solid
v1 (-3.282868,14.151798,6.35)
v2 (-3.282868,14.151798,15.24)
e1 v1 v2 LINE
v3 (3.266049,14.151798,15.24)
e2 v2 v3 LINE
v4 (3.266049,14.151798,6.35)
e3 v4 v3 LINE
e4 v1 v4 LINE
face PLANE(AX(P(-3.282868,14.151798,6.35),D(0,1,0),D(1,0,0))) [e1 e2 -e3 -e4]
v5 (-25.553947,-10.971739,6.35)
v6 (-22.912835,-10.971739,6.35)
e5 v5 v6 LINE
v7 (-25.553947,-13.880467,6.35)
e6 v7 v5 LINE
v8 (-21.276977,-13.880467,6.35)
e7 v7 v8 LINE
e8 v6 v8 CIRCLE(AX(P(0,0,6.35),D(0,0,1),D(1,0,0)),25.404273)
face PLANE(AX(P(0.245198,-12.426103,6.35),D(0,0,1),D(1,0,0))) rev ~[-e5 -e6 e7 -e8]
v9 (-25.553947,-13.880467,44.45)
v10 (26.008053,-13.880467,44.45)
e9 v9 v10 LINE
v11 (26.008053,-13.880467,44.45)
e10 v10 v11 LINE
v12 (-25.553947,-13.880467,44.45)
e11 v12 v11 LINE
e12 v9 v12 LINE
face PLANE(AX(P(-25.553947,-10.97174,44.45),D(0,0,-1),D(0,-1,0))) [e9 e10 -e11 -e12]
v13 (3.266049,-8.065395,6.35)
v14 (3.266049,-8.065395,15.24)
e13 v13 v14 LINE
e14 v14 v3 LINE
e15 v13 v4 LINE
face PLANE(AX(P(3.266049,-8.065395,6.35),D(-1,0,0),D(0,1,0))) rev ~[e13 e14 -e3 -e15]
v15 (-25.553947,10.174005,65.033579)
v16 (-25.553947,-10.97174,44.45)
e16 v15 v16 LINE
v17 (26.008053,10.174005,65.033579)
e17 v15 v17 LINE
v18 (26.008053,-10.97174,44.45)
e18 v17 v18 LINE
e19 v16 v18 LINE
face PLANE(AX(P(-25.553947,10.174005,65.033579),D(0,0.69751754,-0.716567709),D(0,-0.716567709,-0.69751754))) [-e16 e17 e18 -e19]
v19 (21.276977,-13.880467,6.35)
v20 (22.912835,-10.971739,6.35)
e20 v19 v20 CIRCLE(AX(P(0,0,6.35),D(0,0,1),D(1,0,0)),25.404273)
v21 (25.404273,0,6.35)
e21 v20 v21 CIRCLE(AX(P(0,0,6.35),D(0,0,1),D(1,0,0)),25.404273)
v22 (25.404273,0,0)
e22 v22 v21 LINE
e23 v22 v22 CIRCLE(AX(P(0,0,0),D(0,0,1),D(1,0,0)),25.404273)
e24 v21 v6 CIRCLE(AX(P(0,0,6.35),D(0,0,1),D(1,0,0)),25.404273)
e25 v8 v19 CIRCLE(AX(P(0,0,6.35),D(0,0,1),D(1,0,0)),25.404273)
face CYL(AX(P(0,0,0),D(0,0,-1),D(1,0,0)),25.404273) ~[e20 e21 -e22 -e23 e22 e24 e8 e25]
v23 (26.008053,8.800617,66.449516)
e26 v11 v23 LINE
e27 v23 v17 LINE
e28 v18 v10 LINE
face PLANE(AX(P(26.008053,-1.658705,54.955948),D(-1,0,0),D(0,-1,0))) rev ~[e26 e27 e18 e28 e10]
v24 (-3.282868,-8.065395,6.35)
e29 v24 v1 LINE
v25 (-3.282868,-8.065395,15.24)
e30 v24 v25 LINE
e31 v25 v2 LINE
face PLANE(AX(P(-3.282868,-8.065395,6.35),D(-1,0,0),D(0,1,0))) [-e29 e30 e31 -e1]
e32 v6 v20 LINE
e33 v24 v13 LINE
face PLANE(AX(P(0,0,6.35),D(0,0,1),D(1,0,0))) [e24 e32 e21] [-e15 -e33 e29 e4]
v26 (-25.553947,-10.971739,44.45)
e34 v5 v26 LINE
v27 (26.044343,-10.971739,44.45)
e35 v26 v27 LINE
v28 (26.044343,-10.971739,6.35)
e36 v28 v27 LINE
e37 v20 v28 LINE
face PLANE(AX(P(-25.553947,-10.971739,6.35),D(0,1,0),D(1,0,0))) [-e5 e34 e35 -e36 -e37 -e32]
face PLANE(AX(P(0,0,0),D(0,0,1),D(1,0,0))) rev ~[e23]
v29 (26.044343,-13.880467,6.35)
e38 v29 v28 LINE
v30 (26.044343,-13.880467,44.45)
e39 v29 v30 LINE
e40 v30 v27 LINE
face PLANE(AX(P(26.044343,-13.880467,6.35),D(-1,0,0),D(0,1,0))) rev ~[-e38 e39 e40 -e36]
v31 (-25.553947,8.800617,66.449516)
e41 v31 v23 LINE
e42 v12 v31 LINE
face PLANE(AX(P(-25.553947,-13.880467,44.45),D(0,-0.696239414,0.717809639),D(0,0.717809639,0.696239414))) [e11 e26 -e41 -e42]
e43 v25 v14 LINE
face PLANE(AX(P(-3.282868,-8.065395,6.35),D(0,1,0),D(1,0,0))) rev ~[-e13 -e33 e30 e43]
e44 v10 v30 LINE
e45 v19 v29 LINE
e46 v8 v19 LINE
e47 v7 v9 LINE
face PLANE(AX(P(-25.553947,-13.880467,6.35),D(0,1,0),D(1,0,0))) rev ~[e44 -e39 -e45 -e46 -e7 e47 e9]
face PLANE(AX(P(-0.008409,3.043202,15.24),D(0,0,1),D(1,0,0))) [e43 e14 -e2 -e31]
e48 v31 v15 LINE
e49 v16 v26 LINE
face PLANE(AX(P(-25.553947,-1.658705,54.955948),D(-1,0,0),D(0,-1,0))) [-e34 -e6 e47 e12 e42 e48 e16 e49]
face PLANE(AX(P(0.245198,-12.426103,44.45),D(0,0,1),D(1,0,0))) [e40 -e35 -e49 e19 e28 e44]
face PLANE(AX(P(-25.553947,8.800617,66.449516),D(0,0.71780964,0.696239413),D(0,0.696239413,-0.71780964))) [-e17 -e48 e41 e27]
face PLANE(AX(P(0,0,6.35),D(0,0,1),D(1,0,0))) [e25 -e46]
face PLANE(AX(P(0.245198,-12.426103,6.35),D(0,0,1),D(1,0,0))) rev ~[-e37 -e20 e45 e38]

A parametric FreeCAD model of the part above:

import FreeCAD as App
import Part
import Sketcher
from FreeCAD import Vector
Q = App.Units.Quantity

doc = App.newDocument("Part")
params = doc.addObject("Spreadsheet::Sheet", "Params")
for row, (alias, value) in enumerate([
    ("pad1_length", "0.25 in"),
    ("pad2_length", "1.5 in"),
    ("pad3_length", "2.03 in"),
    ("pad4_length", "0.35 in"),
], start=1):
    params.set(f"A{row}", alias)
    params.set(f"B{row}", "=" + value)
    params.setAlias(f"B{row}", alias)

body = doc.addObject("PartDesign::Body", "Body")

# Sketch on XY plane
sketch1 = body.newObject("Sketcher::SketchObject", "Sketch")
sketch1.AttachmentSupport = (doc.getObject("XY_Plane"), [""])
sketch1.MapMode = "FlatFace"
sketch1.addGeometry(Part.Circle(Vector(0, 0, 0), Vector(0, 0, 1), 25.404273), False)
sketch1.addConstraint([
    Sketcher.Constraint("Coincident", 0, 3, -1, 1),
    Sketcher.Constraint("Diameter", 0, Q("50.808546 mm")),
])
pad1 = body.newObject("PartDesign::Pad", "Pad")
pad1.Profile = sketch1
pad1.setExpression("Length", "Params.pad1_length")

# Sketch on XY plane
sketch2 = body.newObject("Sketcher::SketchObject", "Sketch001")
sketch2.AttachmentSupport = (doc.getObject("XY_Plane"), [""])
sketch2.MapMode = "FlatFace"
sketch2.AttachmentOffset = App.Placement(Vector(0, 0, 0.25 * 25.4), App.Rotation())
sketch2.addGeometry([
    Part.LineSegment(Vector(-25.553947, -10.971739, 0), Vector(-25.553947, -13.880467, 0)),
    Part.LineSegment(Vector(-25.553947, -13.880467, 0), Vector(26.044343, -13.880467, 0)),
    Part.LineSegment(Vector(26.044343, -13.880467, 0), Vector(26.044343, -10.971739, 0)),
    Part.LineSegment(Vector(26.044343, -10.971739, 0), Vector(-25.553947, -10.971739, 0)),
], False)
sketch2.addConstraint([
    Sketcher.Constraint("Coincident", 0, 2, 1, 1),
    Sketcher.Constraint("Coincident", 1, 2, 2, 1),
    Sketcher.Constraint("Coincident", 2, 2, 3, 1),
    Sketcher.Constraint("Coincident", 3, 2, 0, 1),
    Sketcher.Constraint("Vertical", 0),
    Sketcher.Constraint("Horizontal", 1),
    Sketcher.Constraint("Vertical", 2),
    Sketcher.Constraint("Horizontal", 3),
    Sketcher.Constraint("DistanceX", 1, 1, 1, 2, Q("51.59829 mm")),
    Sketcher.Constraint("DistanceY", 0, 2, 0, 1, Q("2.908727 mm")),
    Sketcher.Constraint("DistanceY", 2, 2, -1, 1, Q("10.971739 mm")),
    Sketcher.Constraint("DistanceX", 0, 2, -1, 1, Q("25.553947 mm")),
])
pad2 = body.newObject("PartDesign::Pad", "Pad001")
pad2.Profile = sketch2
pad2.setExpression("Length", "Params.pad2_length")

# Sketch on YZ plane
sketch3 = body.newObject("Sketcher::SketchObject", "Sketch002")
sketch3.AttachmentSupport = (doc.getObject("YZ_Plane"), [""])
sketch3.MapMode = "FlatFace"
sketch3.AttachmentOffset = App.Placement(Vector(0, 0, -25.553947), App.Rotation())
sketch3.addGeometry([
    Part.LineSegment(Vector(-10.97174, 44.45, 0), Vector(-13.880467, 44.45, 0)),
    Part.LineSegment(Vector(-13.880467, 44.45, 0), Vector(8.800617, 66.449516, 0)),
    Part.LineSegment(Vector(8.800617, 66.449516, 0), Vector(10.174005, 65.033579, 0)),
    Part.LineSegment(Vector(10.174005, 65.033579, 0), Vector(-10.97174, 44.45, 0)),
], False)
sketch3.addConstraint([
    Sketcher.Constraint("Coincident", 0, 2, 1, 1),
    Sketcher.Constraint("Coincident", 1, 2, 2, 1),
    Sketcher.Constraint("Coincident", 2, 2, 3, 1),
    Sketcher.Constraint("Coincident", 3, 2, 0, 1),
    Sketcher.Constraint("Horizontal", 0),
    Sketcher.Constraint("Perpendicular", 1, 2),
    Sketcher.Constraint("DistanceY", -1, 1, 0, 2, Q("1.75 in")),
    Sketcher.Constraint("Distance", 1, Q("31.597631 mm")),
    Sketcher.Constraint("Distance", 2, Q("1.97258 mm")),
    Sketcher.Constraint("DistanceX", 0, 2, 0, 1, Q("2.908727 mm")),
    Sketcher.Constraint("DistanceY", -1, 1, 2, 2, Q("65.033579 mm")),
    Sketcher.Constraint("DistanceX", 3, 2, -1, 1, Q("10.97174 mm")),
])
pad3 = body.newObject("PartDesign::Pad", "Pad002")
pad3.Profile = sketch3
pad3.setExpression("Length", "Params.pad3_length")

# Sketch on XY plane
sketch4 = body.newObject("Sketcher::SketchObject", "Sketch003")
sketch4.AttachmentSupport = (doc.getObject("XY_Plane"), [""])
sketch4.MapMode = "FlatFace"
sketch4.AttachmentOffset = App.Placement(Vector(0, 0, 0.25 * 25.4), App.Rotation())
sketch4.addGeometry([
    Part.LineSegment(Vector(-3.282868, 14.151798, 0), Vector(-3.282868, -8.065395, 0)),
    Part.LineSegment(Vector(-3.282868, -8.065395, 0), Vector(3.266049, -8.065395, 0)),
    Part.LineSegment(Vector(3.266049, -8.065395, 0), Vector(3.266049, 14.151798, 0)),
    Part.LineSegment(Vector(3.266049, 14.151798, 0), Vector(-3.282868, 14.151798, 0)),
], False)
sketch4.addConstraint([
    Sketcher.Constraint("Coincident", 0, 2, 1, 1),
    Sketcher.Constraint("Coincident", 1, 2, 2, 1),
    Sketcher.Constraint("Coincident", 2, 2, 3, 1),
    Sketcher.Constraint("Coincident", 3, 2, 0, 1),
    Sketcher.Constraint("Vertical", 0),
    Sketcher.Constraint("Horizontal", 1),
    Sketcher.Constraint("Vertical", 2),
    Sketcher.Constraint("Horizontal", 3),
    Sketcher.Constraint("DistanceY", -1, 1, 2, 2, Q("14.151798 mm")),
    Sketcher.Constraint("DistanceX", 1, 1, 1, 2, Q("6.548917 mm")),
    Sketcher.Constraint("DistanceY", 0, 2, 0, 1, Q("22.217193 mm")),
    Sketcher.Constraint("DistanceX", -1, 1, 1, 2, Q("3.266049 mm")),
])
pad4 = body.newObject("PartDesign::Pad", "Pad003")
pad4.Profile = sketch4
pad4.setExpression("Length", "Params.pad4_length")

doc.recompute()
